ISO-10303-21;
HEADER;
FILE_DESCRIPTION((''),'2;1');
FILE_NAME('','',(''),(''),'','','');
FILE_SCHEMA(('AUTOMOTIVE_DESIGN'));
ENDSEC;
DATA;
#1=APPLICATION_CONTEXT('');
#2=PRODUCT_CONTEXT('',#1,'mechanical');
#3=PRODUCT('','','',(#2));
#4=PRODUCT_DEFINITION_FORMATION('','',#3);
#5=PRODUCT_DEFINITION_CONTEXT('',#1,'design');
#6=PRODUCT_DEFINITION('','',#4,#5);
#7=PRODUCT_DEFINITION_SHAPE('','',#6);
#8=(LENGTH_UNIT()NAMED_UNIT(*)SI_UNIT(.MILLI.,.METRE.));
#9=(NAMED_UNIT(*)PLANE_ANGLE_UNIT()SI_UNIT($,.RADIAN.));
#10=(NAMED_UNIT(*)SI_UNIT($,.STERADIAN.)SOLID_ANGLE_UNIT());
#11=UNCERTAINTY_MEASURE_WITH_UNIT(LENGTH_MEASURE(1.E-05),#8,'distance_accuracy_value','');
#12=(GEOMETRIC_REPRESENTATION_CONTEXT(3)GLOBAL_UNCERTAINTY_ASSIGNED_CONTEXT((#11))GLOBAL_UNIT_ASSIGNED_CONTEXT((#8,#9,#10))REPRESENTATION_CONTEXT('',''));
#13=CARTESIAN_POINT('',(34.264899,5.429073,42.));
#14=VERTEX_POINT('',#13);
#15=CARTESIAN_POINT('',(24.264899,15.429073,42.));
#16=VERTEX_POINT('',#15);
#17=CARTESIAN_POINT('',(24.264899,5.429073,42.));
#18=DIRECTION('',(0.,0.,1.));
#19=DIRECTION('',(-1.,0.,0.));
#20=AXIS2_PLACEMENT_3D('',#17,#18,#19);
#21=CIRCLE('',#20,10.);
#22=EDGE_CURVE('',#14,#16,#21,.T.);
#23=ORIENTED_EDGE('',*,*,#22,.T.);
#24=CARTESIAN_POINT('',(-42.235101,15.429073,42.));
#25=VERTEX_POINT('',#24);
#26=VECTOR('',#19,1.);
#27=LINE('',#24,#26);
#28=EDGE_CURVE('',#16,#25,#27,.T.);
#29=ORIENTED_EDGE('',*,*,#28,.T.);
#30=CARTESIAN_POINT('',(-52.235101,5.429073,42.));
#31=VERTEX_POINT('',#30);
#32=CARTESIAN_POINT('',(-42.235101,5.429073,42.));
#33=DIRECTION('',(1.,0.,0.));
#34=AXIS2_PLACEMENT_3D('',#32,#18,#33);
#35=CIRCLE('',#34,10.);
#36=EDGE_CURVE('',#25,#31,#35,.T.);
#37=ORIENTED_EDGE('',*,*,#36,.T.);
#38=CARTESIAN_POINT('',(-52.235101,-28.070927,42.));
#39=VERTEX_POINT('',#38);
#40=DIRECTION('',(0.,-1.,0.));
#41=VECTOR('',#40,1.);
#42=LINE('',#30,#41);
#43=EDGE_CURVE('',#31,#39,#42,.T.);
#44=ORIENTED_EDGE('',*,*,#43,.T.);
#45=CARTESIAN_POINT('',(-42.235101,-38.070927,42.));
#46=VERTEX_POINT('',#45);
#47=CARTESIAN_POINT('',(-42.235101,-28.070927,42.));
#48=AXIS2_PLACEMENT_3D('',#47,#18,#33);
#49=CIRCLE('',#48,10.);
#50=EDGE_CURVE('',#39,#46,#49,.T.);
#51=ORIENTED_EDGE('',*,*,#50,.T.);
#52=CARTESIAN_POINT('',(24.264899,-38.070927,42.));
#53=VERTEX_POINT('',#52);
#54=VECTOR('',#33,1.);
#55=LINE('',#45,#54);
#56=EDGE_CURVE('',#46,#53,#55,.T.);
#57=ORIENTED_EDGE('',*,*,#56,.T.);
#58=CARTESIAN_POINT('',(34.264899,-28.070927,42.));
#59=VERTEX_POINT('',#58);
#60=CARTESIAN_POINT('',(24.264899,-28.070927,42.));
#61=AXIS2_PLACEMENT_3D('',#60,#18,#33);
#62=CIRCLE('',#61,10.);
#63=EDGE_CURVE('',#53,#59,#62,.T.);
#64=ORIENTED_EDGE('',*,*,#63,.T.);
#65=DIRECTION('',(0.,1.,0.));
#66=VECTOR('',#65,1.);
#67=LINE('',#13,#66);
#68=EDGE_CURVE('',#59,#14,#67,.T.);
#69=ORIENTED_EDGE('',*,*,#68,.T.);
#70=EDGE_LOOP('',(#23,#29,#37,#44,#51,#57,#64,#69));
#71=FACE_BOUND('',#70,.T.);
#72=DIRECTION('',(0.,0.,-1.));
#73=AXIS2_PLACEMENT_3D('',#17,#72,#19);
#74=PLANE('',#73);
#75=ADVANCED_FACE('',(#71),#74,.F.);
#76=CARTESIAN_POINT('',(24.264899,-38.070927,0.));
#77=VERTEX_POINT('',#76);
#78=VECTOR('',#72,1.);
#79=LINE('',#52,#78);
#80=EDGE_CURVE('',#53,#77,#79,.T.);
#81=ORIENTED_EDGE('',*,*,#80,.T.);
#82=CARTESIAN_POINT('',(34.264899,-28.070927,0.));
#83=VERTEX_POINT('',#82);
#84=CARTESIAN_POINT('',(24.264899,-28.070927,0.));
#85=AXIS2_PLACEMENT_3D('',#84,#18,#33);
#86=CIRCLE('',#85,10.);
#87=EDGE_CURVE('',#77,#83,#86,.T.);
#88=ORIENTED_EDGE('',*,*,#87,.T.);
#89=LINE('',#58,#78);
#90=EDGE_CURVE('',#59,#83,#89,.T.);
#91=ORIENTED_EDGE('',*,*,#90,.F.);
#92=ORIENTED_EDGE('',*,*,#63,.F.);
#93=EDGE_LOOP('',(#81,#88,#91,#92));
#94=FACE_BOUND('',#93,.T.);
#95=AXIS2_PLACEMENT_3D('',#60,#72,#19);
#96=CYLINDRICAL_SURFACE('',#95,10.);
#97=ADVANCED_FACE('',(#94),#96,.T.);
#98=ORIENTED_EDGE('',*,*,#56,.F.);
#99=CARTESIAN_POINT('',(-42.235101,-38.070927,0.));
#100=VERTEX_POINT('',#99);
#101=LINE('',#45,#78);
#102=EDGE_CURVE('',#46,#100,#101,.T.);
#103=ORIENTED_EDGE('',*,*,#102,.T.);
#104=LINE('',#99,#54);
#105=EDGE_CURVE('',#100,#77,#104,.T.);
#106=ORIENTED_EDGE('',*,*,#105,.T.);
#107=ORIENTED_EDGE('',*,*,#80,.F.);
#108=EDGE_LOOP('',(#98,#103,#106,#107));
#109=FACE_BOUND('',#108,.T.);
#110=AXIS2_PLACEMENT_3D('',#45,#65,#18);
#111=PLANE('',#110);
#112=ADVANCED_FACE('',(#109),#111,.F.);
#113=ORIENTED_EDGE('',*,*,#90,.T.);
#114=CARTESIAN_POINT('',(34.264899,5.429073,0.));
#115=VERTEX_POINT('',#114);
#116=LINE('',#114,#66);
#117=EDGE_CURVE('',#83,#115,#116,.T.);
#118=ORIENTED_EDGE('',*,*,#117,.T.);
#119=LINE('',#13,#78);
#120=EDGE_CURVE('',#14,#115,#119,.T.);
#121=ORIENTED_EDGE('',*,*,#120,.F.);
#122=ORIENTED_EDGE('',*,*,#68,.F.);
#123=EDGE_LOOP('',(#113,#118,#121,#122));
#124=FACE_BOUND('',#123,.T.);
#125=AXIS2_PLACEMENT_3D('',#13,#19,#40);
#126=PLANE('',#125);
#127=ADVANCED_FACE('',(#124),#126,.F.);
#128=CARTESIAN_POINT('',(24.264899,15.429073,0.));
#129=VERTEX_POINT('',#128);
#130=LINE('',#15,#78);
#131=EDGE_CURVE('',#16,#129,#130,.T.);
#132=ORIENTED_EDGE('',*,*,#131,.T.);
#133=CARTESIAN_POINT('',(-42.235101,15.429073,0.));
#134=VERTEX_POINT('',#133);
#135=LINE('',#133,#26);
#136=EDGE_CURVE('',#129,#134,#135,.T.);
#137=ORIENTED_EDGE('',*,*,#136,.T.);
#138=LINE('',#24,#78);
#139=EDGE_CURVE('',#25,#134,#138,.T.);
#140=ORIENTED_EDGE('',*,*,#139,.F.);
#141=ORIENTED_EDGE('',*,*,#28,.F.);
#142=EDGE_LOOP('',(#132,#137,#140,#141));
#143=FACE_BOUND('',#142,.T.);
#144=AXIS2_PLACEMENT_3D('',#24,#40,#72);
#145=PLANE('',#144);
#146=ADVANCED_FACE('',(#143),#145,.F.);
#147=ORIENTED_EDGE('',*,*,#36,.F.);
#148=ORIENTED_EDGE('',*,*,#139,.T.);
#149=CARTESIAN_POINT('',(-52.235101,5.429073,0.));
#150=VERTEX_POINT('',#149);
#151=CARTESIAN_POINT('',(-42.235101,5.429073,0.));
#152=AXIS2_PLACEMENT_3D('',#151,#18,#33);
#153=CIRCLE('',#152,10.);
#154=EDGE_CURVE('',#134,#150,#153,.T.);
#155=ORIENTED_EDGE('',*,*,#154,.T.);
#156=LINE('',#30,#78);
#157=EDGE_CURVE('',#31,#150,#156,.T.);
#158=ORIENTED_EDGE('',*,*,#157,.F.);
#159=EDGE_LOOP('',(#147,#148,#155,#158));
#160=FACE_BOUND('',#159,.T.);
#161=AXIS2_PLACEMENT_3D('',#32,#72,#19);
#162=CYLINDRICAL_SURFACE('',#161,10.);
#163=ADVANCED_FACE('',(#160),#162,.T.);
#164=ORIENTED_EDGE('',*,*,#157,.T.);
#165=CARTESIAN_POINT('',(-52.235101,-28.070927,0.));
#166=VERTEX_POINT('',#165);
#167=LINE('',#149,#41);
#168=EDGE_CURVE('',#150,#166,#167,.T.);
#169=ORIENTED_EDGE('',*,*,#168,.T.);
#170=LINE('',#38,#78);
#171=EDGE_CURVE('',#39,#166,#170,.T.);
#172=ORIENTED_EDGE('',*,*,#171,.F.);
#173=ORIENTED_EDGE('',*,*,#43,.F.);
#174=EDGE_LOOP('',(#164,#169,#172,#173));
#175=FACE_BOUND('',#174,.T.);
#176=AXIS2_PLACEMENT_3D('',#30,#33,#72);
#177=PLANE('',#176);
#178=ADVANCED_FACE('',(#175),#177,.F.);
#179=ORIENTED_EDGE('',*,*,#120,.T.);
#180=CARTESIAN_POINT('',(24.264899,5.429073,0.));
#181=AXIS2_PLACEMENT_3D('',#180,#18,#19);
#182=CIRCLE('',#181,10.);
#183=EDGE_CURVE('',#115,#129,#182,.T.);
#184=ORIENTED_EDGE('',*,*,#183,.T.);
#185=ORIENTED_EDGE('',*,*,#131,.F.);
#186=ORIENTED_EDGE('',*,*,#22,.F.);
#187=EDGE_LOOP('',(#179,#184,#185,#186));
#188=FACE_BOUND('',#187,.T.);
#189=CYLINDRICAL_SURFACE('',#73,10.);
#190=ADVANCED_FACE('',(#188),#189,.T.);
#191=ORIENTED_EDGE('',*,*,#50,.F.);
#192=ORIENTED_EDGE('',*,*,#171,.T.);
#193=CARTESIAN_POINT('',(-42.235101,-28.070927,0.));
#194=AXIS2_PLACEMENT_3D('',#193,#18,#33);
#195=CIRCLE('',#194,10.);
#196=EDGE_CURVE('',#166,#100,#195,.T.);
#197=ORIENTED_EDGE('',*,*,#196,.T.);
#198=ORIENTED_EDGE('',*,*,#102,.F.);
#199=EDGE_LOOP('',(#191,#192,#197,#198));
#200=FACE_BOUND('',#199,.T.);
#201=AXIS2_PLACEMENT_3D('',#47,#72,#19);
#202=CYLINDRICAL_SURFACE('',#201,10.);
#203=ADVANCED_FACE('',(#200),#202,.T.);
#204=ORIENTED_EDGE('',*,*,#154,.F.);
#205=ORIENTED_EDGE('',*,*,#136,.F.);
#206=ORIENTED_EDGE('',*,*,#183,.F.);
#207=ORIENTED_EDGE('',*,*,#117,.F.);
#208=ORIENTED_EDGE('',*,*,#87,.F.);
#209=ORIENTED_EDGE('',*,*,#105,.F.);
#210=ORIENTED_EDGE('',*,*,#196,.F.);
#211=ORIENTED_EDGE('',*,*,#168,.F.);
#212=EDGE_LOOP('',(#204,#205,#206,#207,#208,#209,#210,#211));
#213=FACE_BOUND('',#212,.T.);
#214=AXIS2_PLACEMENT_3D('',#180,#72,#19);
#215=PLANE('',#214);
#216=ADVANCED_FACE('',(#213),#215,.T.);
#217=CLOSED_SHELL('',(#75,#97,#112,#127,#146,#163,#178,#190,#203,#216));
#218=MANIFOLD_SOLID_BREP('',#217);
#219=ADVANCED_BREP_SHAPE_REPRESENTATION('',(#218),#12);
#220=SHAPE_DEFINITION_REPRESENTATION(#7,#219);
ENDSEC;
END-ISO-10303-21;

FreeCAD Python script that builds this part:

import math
import FreeCAD as App
import Part
import Sketcher

V = App.Vector
Q = App.Units.Quantity

doc = App.newDocument("Part")
body = doc.addObject("PartDesign::Body", "Body")

sketch1 = body.newObject("Sketcher::SketchObject", "Sketch")
sketch1.AttachmentSupport = (doc.getObject("XY_Plane"), [""])
sketch1.MapMode = "FlatFace"
sketch1.addGeometry(Part.LineSegment(V(24, 15, 0), V(-42, 15, 0)), False)
sketch1.addGeometry(Part.ArcOfCircle(Part.Circle(V(-42, 5, 0), V(0, 0, 1), 10), math.radians(90), math.radians(180)), False)
sketch1.addGeometry(Part.LineSegment(V(-52, 5, 0), V(-52, -28, 0)), False)
sketch1.addGeometry(Part.ArcOfCircle(Part.Circle(V(-42, -28, 0), V(0, 0, 1), 10), math.radians(180), math.radians(270)), False)
sketch1.addGeometry(Part.LineSegment(V(-42, -38, 0), V(24, -38, 0)), False)
sketch1.addGeometry(Part.ArcOfCircle(Part.Circle(V(24, -28, 0), V(0, 0, 1), 10), math.radians(-90), math.radians(0)), False)
sketch1.addGeometry(Part.LineSegment(V(34, -28, 0), V(34, 5, 0)), False)
sketch1.addGeometry(Part.ArcOfCircle(Part.Circle(V(24, 5, 0), V(0, 0, 1), 10), math.radians(0), math.radians(90)), False)
sketch1.addConstraint(Sketcher.Constraint("Tangent", 0, 2, 1, 1))
sketch1.addConstraint(Sketcher.Constraint("Tangent", 1, 2, 2, 1))
sketch1.addConstraint(Sketcher.Constraint("Tangent", 2, 2, 3, 1))
sketch1.addConstraint(Sketcher.Constraint("Tangent", 3, 2, 4, 1))
sketch1.addConstraint(Sketcher.Constraint("Tangent", 4, 2, 5, 1))
sketch1.addConstraint(Sketcher.Constraint("Tangent", 5, 2, 6, 1))
sketch1.addConstraint(Sketcher.Constraint("Tangent", 6, 2, 7, 1))
sketch1.addConstraint(Sketcher.Constraint("Tangent", 7, 2, 0, 1))
sketch1.addConstraint(Sketcher.Constraint("Horizontal", 0))
sketch1.addConstraint(Sketcher.Constraint("Vertical", 2))
sketch1.addConstraint(Sketcher.Constraint("Horizontal", 4))
sketch1.addConstraint(Sketcher.Constraint("Vertical", 6))
sketch1.addConstraint(Sketcher.Constraint("Equal", 1, 3))
sketch1.addConstraint(Sketcher.Constraint("Equal", 3, 5))
sketch1.addConstraint(Sketcher.Constraint("Equal", 5, 7))
sketch1.addConstraint(Sketcher.Constraint("Radius", 1, Q("10 mm")))
sketch1.addConstraint(Sketcher.Constraint("DistanceX", 0, 2, 0, 1, Q("66.5 mm")))
sketch1.addConstraint(Sketcher.Constraint("DistanceY", 2, 2, 2, 1, Q("33.5 mm")))
sketch1.addConstraint(Sketcher.Constraint("DistanceX", 1, 3, -1, 1, Q("42.235101 mm")))
sketch1.addConstraint(Sketcher.Constraint("DistanceY", -1, 1, 1, 3, Q("5.429073 mm")))
pad1 = body.newObject("PartDesign::Pad", "Pad")
pad1.Profile = sketch1
pad1.Length = 42

doc.recompute()
